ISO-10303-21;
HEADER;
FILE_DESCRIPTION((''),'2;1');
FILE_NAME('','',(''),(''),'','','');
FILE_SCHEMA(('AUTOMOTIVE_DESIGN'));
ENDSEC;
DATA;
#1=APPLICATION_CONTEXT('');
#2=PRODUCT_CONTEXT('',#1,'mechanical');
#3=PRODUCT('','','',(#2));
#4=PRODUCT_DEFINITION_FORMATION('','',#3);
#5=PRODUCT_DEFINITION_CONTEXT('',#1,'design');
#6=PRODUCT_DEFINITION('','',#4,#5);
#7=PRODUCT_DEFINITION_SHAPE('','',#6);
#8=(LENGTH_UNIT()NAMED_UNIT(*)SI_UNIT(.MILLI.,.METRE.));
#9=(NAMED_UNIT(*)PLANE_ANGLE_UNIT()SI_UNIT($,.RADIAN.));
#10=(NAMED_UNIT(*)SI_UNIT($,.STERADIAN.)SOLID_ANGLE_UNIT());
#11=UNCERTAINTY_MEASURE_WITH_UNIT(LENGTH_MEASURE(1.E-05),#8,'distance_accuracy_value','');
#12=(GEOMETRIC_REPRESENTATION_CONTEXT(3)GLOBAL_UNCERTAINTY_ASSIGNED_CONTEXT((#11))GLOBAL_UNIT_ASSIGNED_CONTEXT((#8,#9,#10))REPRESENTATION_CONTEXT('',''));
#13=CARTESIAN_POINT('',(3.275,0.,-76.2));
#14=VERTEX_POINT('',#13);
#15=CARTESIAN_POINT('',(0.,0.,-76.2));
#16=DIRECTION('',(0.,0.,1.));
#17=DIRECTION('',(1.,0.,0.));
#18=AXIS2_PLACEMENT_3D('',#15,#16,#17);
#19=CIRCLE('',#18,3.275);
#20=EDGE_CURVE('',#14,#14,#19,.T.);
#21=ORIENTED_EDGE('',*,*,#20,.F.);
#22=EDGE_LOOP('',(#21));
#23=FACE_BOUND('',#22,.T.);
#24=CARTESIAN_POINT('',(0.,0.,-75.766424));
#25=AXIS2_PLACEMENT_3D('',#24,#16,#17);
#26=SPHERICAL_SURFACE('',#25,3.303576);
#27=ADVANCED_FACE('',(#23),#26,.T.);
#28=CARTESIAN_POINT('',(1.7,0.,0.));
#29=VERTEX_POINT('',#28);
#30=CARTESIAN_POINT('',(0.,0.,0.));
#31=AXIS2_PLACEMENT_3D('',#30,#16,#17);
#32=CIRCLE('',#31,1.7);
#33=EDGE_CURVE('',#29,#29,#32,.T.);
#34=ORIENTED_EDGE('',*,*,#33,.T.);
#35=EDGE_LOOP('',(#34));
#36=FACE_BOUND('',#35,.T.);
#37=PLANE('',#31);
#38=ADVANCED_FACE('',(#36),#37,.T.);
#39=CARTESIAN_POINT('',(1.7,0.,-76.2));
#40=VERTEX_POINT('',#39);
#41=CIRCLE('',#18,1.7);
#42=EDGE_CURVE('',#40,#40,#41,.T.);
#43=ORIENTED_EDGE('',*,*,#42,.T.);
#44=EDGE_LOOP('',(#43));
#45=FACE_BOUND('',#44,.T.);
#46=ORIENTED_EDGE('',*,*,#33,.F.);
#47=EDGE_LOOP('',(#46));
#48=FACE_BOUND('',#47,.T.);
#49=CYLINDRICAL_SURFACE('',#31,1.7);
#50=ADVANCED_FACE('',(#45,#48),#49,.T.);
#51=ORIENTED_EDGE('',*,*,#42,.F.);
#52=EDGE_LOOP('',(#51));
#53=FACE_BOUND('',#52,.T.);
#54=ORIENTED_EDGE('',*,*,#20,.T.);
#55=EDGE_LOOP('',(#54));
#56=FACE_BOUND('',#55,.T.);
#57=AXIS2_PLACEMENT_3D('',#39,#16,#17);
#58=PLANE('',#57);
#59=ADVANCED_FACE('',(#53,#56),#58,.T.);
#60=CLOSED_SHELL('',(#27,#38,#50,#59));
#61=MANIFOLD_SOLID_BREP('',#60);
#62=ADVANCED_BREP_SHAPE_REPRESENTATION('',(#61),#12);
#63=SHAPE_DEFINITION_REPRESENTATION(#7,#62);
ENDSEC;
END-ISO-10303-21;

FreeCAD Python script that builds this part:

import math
import FreeCAD as App
import Part
import Sketcher

V = App.Vector

doc = App.newDocument("Part")
params = doc.addObject("Spreadsheet::Sheet", "Params")
for row, (alias, value) in enumerate([
    ("sketch1_width", "1.7 mm"),
    ("sketch1_height", "76.2 mm"),
    ("sketch1_height2", "79.07 mm"),
    ("revolution_angle", "360 deg"),
], start=1):
    params.set(f"A{row}", alias)
    params.set(f"B{row}", "=" + value)
    params.setAlias(f"B{row}", alias)

body = doc.addObject("PartDesign::Body", "Body")

# Sketch on XZ plane
sketch1 = body.newObject("Sketcher::SketchObject", "Sketch")
sketch1.AttachmentSupport = (doc.getObject("XZ_Plane"), [""])
sketch1.MapMode = "FlatFace"
sketch1.addGeometry(Part.LineSegment(V(0, -79.07, 0), V(0, 0, 0)), False)
sketch1.addGeometry(Part.LineSegment(V(0, 0, 0), V(1.7, 0, 0)), False)
sketch1.addGeometry(Part.LineSegment(V(1.7, 0, 0), V(1.7, -76.2, 0)), False)
sketch1.addGeometry(Part.LineSegment(V(1.7, -76.2, 0), V(3.275, -76.2, 0)), False)
sketch1.addGeometry(Part.ArcOfCircle(Part.Circle(V(0, -75.766424, 0), V(0, 0, 1), 3.303576), math.radians(-90), math.radians(-7.541507)), False)
sketch1.addConstraint(Sketcher.Constraint("Coincident", 0, 2, 1, 1))
sketch1.addConstraint(Sketcher.Constraint("Coincident", 1, 2, 2, 1))
sketch1.addConstraint(Sketcher.Constraint("Coincident", 2, 2, 3, 1))
sketch1.addConstraint(Sketcher.Constraint("Coincident", 3, 2, 4, 2))
sketch1.addConstraint(Sketcher.Constraint("Coincident", 4, 1, 0, 1))
sketch1.addConstraint(Sketcher.Constraint("Vertical", 0))
sketch1.addConstraint(Sketcher.Constraint("Horizontal", 1))
sketch1.addConstraint(Sketcher.Constraint("Vertical", 2))
sketch1.addConstraint(Sketcher.Constraint("Horizontal", 3))
sketch1.addConstraint(Sketcher.Constraint("Coincident", 0, 2, -1, 1))
sketch1.addConstraint(Sketcher.Constraint("PointOnObject", 4, 3, -2))
sketch1.addConstraint(Sketcher.Constraint("DistanceX", 1, 1, 1, 2, 1.7))
sketch1.addConstraint(Sketcher.Constraint("DistanceY", 2, 2, 2, 1, 76.2))
sketch1.addConstraint(Sketcher.Constraint("DistanceY", 0, 1, 0, 2, 79.07))
sketch1.addConstraint(Sketcher.Constraint("DistanceX", 3, 1, 3, 2, 1.575))
sketch1.setExpression("Constraints[11]", "Params.sketch1_width")
sketch1.setExpression("Constraints[12]", "Params.sketch1_height")
sketch1.setExpression("Constraints[13]", "Params.sketch1_height2")
revolution = body.newObject("PartDesign::Revolution", "Revolution")
revolution.Profile = sketch1
revolution.ReferenceAxis = (sketch1, ["V_Axis"])
revolution.setExpression("Angle", "Params.revolution_angle")

doc.recompute()
